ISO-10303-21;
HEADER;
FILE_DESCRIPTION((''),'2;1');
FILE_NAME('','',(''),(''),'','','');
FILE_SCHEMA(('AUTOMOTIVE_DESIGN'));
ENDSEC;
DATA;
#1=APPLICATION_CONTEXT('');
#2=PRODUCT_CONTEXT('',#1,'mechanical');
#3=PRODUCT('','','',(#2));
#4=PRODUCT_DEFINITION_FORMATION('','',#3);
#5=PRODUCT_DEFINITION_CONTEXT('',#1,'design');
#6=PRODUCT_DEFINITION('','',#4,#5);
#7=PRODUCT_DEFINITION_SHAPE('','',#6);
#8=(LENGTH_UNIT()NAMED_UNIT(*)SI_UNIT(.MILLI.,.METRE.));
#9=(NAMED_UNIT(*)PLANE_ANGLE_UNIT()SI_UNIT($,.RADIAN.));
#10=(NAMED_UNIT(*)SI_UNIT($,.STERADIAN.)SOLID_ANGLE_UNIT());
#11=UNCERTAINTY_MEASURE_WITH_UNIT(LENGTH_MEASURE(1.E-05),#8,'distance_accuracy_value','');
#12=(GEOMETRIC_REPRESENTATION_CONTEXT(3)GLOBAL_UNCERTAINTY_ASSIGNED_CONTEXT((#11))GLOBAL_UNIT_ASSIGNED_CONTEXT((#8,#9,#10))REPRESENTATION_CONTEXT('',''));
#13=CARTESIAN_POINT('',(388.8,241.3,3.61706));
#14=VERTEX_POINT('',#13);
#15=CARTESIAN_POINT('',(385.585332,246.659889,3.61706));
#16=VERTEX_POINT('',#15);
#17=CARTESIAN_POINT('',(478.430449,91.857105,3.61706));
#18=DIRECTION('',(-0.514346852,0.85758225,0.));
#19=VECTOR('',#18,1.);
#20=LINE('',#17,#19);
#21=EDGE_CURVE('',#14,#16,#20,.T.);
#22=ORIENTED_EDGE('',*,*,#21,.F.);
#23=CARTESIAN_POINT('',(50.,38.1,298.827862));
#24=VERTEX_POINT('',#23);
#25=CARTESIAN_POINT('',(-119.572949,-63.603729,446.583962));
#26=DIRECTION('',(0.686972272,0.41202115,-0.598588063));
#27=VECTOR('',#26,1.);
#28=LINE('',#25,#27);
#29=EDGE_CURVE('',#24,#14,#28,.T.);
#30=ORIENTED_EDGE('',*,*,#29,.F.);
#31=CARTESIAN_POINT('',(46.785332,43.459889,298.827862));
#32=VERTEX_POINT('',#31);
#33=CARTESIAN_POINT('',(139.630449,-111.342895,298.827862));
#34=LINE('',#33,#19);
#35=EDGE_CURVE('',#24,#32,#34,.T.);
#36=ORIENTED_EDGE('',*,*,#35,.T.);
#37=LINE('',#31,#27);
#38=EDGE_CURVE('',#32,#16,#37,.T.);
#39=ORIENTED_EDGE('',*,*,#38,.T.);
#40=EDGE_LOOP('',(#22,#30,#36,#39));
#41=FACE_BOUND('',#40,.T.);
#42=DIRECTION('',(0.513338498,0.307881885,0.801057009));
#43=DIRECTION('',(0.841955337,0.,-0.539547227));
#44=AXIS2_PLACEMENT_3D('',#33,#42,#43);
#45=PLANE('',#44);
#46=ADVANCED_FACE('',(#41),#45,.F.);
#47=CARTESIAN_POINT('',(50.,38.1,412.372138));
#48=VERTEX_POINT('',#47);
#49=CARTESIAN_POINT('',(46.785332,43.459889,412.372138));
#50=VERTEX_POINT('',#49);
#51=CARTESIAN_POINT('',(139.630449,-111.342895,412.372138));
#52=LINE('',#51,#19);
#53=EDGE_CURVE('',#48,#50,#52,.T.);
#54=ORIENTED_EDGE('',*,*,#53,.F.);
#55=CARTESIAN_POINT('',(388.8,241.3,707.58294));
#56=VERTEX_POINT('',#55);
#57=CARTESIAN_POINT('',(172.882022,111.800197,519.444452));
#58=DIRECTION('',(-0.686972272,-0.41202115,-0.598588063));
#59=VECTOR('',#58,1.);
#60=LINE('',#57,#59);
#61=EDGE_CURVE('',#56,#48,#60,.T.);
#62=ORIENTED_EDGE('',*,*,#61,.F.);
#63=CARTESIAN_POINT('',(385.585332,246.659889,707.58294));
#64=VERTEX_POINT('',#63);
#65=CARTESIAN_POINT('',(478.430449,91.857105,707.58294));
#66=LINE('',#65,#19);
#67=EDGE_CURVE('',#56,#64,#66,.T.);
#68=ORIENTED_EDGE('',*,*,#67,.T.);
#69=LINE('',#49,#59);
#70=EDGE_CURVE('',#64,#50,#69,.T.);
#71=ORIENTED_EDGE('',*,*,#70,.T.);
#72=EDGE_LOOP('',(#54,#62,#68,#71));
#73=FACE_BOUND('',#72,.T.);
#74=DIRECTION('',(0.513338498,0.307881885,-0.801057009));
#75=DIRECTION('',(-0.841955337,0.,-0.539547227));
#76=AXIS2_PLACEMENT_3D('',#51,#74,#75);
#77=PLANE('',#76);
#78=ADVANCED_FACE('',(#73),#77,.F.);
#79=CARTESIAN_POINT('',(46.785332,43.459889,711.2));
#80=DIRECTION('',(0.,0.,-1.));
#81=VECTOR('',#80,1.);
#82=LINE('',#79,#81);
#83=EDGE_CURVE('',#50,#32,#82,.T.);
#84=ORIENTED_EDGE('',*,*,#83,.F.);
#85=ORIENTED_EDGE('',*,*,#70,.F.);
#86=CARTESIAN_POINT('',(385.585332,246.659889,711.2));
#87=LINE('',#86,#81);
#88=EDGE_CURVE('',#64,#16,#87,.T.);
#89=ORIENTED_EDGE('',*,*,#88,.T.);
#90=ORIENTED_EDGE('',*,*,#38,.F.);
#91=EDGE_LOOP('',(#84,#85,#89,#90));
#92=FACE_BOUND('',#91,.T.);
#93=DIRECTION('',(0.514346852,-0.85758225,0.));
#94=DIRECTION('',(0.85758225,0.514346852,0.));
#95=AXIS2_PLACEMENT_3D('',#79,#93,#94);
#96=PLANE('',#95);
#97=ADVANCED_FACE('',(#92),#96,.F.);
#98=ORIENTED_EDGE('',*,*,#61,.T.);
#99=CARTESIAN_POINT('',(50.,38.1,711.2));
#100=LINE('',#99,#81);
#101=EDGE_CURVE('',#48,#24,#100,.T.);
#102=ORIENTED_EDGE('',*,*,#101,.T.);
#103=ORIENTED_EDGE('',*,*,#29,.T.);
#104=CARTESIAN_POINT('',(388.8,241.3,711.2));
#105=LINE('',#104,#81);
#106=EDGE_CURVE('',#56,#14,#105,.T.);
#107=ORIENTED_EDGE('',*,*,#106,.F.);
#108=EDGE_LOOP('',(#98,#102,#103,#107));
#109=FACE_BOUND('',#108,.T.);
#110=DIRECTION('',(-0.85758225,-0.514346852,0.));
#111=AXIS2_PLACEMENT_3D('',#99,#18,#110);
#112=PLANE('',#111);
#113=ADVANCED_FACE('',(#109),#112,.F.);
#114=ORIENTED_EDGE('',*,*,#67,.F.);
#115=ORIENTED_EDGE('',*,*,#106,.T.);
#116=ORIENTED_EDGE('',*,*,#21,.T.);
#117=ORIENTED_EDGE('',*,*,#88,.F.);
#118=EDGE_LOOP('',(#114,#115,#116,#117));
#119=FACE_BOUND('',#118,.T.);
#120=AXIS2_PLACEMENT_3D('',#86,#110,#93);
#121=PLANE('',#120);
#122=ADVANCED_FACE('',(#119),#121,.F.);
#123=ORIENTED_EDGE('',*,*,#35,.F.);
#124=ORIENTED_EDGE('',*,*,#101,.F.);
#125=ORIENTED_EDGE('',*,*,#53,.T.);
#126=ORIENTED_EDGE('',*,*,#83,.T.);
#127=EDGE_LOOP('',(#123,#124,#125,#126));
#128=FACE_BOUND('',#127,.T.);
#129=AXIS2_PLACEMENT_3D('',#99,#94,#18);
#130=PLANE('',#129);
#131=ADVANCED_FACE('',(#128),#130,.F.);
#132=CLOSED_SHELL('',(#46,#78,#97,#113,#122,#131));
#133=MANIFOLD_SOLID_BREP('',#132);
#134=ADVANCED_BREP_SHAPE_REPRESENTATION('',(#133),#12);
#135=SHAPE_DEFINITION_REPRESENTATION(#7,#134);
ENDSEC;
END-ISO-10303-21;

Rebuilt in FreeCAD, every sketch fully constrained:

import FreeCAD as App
import Part
import Sketcher

V = App.Vector
Q = App.Units.Quantity

doc = App.newDocument("Part")
body = doc.addObject("PartDesign::Body", "Body")

# Sketch on XY plane
sketch1 = body.newObject("Sketcher::SketchObject", "Sketch")
sketch1.AttachmentSupport = (doc.getObject("XY_Plane"), [""])
sketch1.MapMode = "FlatFace"
sketch1.addGeometry([
    Part.LineSegment(V(47, 43, 0), V(50, 38, 0)),
    Part.LineSegment(V(50, 38, 0), V(389, 241, 0)),
    Part.LineSegment(V(389, 241, 0), V(386, 247, 0)),
    Part.LineSegment(V(386, 247, 0), V(47, 43, 0)),
], False)
sketch1.addConstraint([
    Sketcher.Constraint("Coincident", 0, 2, 1, 1),
    Sketcher.Constraint("Coincident", 1, 2, 2, 1),
    Sketcher.Constraint("Coincident", 2, 2, 3, 1),
    Sketcher.Constraint("Coincident", 3, 2, 0, 1),
    Sketcher.Constraint("Perpendicular", 0, 1),
    Sketcher.Constraint("Perpendicular", 1, 2),
    Sketcher.Constraint("Perpendicular", 2, 3),
    Sketcher.Constraint("DistanceY", 0, 2, 1, 2, Q("8 in")),
    Sketcher.Constraint("DistanceY", -1, 1, 0, 2, Q("1.5 in")),
    Sketcher.Constraint("Distance", 0, Q("6.25 mm")),
    Sketcher.Constraint("DistanceX", -1, 1, 0, 2, Q("50 mm")),
    Sketcher.Constraint("DistanceX", -1, 1, 1, 2, Q("388.8 mm")),
])
pad1 = body.newObject("PartDesign::Pad", "Pad")
pad1.Profile = sketch1
pad1.Length = Q("28 in")

# Sketch on an angled plane
sketch2 = body.newObject("Sketcher::SketchObject", "Sketch001")
sketch2.Placement = App.Placement(V(-6.792743, 11.325695, 0), App.Rotation(V(0.85758225, 0.514346852, 0), V(0, 0, -1), V(-0.514346852, 0.85758225, 0), "ZXY"))
sketch2.addGeometry([
    Part.LineSegment(V(457.5, -707.6, 0), V(62.5, -412.4, 0)),  # 0
    Part.LineSegment(V(62.5, -412.4, 0), V(62.5, -711.2, 0)),  # 1
    Part.LineSegment(V(62.5, -711.2, 0), V(457.5, -711.2, 0)),  # 2
    Part.LineSegment(V(457.5, -711.2, 0), V(457.5, -707.6, 0)),  # 3
    Part.LineSegment(V(62.5, -298.8, 0), V(457.5, -3.6, 0)),  # 4
    Part.LineSegment(V(457.5, -3.6, 0), V(457.5, 0, 0)),  # 5
    Part.LineSegment(V(457.5, 0, 0), V(62.5, 0, 0)),  # 6
    Part.LineSegment(V(62.5, 0, 0), V(62.5, -298.8, 0)),  # 7
], False)
sketch2.addConstraint([
    Sketcher.Constraint("Coincident", 0, 2, 1, 1),
    Sketcher.Constraint("Coincident", 1, 2, 2, 1),
    Sketcher.Constraint("Coincident", 2, 2, 3, 1),
    Sketcher.Constraint("Coincident", 3, 2, 0, 1),
    Sketcher.Constraint("Coincident", 4, 2, 5, 1),
    Sketcher.Constraint("Coincident", 5, 2, 6, 1),
    Sketcher.Constraint("Coincident", 6, 2, 7, 1),
    Sketcher.Constraint("Coincident", 7, 2, 4, 1),
    Sketcher.Constraint("Vertical", 1),
    Sketcher.Constraint("Horizontal", 2),
    Sketcher.Constraint("Vertical", 3),
    Sketcher.Constraint("Vertical", 5),
    Sketcher.Constraint("Horizontal", 6),
    Sketcher.Constraint("Vertical", 7),
    Sketcher.Constraint("PointOnObject", 5, 2, -1),
    Sketcher.Constraint("Vertical", 3, 2, 4, 2),
    Sketcher.Constraint("Vertical", 1, 2, 6, 2),
    Sketcher.Constraint("Equal", 3, 5),
    Sketcher.Constraint("Equal", 1, 7),
    Sketcher.Constraint("DistanceY", 1, 2, -1, 1, Q("28 in")),
    Sketcher.Constraint("DistanceY", 3, 1, 3, 2, Q("3.61706 mm")),
    Sketcher.Constraint("DistanceX", 2, 1, 2, 2, Q("395.064147 mm")),
    Sketcher.Constraint("DistanceY", 1, 2, 1, 1, Q("298.827862 mm")),
    Sketcher.Constraint("DistanceX", -1, 1, 0, 2, Q("62.475728 mm")),
])
pocket1 = body.newObject("PartDesign::Pocket", "Pocket")
pocket1.Profile = sketch2
pocket1.Type = "ThroughAll"

doc.recompute()
